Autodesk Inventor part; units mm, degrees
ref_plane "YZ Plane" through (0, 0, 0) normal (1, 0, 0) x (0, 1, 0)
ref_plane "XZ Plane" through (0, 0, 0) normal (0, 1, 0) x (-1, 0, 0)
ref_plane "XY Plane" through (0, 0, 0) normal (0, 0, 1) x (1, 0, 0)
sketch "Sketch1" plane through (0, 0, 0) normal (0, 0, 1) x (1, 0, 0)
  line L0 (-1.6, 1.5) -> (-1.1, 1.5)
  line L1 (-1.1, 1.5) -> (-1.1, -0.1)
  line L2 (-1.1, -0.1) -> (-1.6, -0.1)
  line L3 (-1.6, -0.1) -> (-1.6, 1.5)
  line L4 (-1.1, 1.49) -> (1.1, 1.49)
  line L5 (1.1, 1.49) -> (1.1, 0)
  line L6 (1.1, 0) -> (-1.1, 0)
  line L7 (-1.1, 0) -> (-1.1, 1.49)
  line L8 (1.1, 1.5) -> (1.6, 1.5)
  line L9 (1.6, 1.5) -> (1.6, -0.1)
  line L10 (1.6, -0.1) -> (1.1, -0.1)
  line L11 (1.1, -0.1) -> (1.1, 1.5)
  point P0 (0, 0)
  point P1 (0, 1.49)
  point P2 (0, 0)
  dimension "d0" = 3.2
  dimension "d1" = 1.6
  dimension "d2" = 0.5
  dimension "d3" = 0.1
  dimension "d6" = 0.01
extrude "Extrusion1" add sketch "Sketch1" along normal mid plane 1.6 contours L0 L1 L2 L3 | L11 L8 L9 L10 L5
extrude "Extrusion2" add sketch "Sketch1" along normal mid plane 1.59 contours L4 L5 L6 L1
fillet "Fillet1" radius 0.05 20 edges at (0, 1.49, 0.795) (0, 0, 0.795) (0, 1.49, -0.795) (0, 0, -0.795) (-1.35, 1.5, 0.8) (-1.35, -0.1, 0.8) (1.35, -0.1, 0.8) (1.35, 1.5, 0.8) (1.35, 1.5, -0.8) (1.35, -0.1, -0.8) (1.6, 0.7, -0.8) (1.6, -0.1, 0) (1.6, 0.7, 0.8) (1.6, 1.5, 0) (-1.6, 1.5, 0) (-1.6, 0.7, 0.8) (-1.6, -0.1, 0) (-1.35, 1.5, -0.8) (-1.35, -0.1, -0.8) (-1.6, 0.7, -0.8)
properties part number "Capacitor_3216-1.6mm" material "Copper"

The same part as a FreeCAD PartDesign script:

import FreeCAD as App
import Part
import Sketcher


def edges_at(feature, points):
    """Names of the edges that pass closest to the given points."""
    edges = feature.Shape.Edges
    near = lambda p: min(range(len(edges)), key=lambda i: edges[i].distToShape(Part.Vertex(*p))[0])
    return sorted({f"Edge{near(p) + 1}" for p in points})

doc = App.newDocument("Part")
body = doc.addObject("PartDesign::Body", "Body")
body.AllowCompound = True

# Sketch on XY plane
sketch1 = body.newObject("Sketcher::SketchObject", "Sketch")
sketch1.AttachmentSupport = (doc.getObject("XY_Plane"), [""])
sketch1.MapMode = "FlatFace"
sketch1.addGeometry([
    Part.LineSegment(App.Vector(-1.1, 1.5, 0), App.Vector(-1.6, 1.5, 0)),  # 0
    Part.LineSegment(App.Vector(-1.6, 1.5, 0), App.Vector(-1.6, -0.1, 0)),  # 1
    Part.LineSegment(App.Vector(-1.6, -0.1, 0), App.Vector(-1.1, -0.1, 0)),  # 2
    Part.LineSegment(App.Vector(-1.1, -0.1, 0), App.Vector(-1.1, 1.5, 0)),  # 3
    Part.LineSegment(App.Vector(1.1, 1.5, 0), App.Vector(1.1, -0.1, 0)),  # 4
    Part.LineSegment(App.Vector(1.1, -0.1, 0), App.Vector(1.6, -0.1, 0)),  # 5
    Part.LineSegment(App.Vector(1.6, -0.1, 0), App.Vector(1.6, 1.5, 0)),  # 6
    Part.LineSegment(App.Vector(1.6, 1.5, 0), App.Vector(1.1, 1.5, 0)),  # 7
], False)
sketch1.addConstraint([
    Sketcher.Constraint("Coincident", 0, 2, 1, 1),
    Sketcher.Constraint("Coincident", 1, 2, 2, 1),
    Sketcher.Constraint("Coincident", 2, 2, 3, 1),
    Sketcher.Constraint("Coincident", 3, 2, 0, 1),
    Sketcher.Constraint("Coincident", 4, 2, 5, 1),
    Sketcher.Constraint("Coincident", 5, 2, 6, 1),
    Sketcher.Constraint("Coincident", 6, 2, 7, 1),
    Sketcher.Constraint("Coincident", 7, 2, 4, 1),
    Sketcher.Constraint("Horizontal", 0),
    Sketcher.Constraint("Vertical", 1),
    Sketcher.Constraint("Horizontal", 2),
    Sketcher.Constraint("Vertical", 3),
    Sketcher.Constraint("Vertical", 4),
    Sketcher.Constraint("Horizontal", 5),
    Sketcher.Constraint("Vertical", 6),
    Sketcher.Constraint("Horizontal", 7),
    Sketcher.Constraint("Symmetric", 2, 2, 4, 2, -2),
    Sketcher.Constraint("Symmetric", 0, 2, 6, 2, -2),
    Sketcher.Constraint("DistanceX", 0, 2, 0, 1, 0.5),
    Sketcher.Constraint("DistanceY", 1, 2, 1, 1, 1.6),
    Sketcher.Constraint("DistanceX", 0, 2, -1, 1, 1.6),
    Sketcher.Constraint("DistanceY", 1, 2, -1, 1, 0.1),
])
pad1 = body.newObject("PartDesign::Pad", "Pad")
pad1.Profile = sketch1
pad1.Length = 1.6
pad1.Midplane = True

# Sketch on XY plane
sketch2 = body.newObject("Sketcher::SketchObject", "Sketch001")
sketch2.AttachmentSupport = (doc.getObject("XY_Plane"), [""])
sketch2.MapMode = "FlatFace"
sketch2.addGeometry([
    Part.LineSegment(App.Vector(1.1, 1.5, 0), App.Vector(-1.1, 1.5, 0)),
    Part.LineSegment(App.Vector(-1.1, 1.5, 0), App.Vector(-1.1, 0, 0)),
    Part.LineSegment(App.Vector(-1.1, 0, 0), App.Vector(1.1, 0, 0)),
    Part.LineSegment(App.Vector(1.1, 0, 0), App.Vector(1.1, 1.5, 0)),
], False)
sketch2.addConstraint([
    Sketcher.Constraint("Coincident", 0, 2, 1, 1),
    Sketcher.Constraint("Coincident", 1, 2, 2, 1),
    Sketcher.Constraint("Coincident", 2, 2, 3, 1),
    Sketcher.Constraint("Coincident", 3, 2, 0, 1),
    Sketcher.Constraint("Horizontal", 0),
    Sketcher.Constraint("Vertical", 1),
    Sketcher.Constraint("Horizontal", 2),
    Sketcher.Constraint("Vertical", 3),
    Sketcher.Constraint("Symmetric", 1, 2, 2, 2, -1, 1),
    Sketcher.Constraint("DistanceX", 0, 2, 0, 1, 2.2),
    Sketcher.Constraint("DistanceY", 1, 2, 1, 1, 1.49),
])
pad2 = body.newObject("PartDesign::Pad", "Pad001")
pad2.Profile = sketch2
pad2.Length = 1.59
pad2.Midplane = True
doc.recompute()

fillet = body.newObject("PartDesign::Fillet", "Fillet")
fillet.Base = (pad2, edges_at(pad2, [
    (0, 1.49, 0.795),
    (0, 0, 0.795),
    (0, 1.49, -0.795),
    (0, 0, -0.795),
    (-1.35, 1.5, 0.8),
    (-1.35, -0.1, 0.8),
    (1.35, -0.1, 0.8),
    (1.35, 1.5, 0.8),
    (1.35, 1.5, -0.8),
    (1.35, -0.1, -0.8),
    (1.6, 0.7, -0.8),
    (1.6, -0.1, 0),
    (1.6, 0.7, 0.8),
    (1.6, 1.5, 0),
    (-1.6, 1.5, 0),
    (-1.6, 0.7, 0.8),
    (-1.6, -0.1, 0),
    (-1.35, 1.5, -0.8),
    (-1.35, -0.1, -0.8),
    (-1.6, 0.7, -0.8),
]))
fillet.Radius = 0.05

doc.recompute()
